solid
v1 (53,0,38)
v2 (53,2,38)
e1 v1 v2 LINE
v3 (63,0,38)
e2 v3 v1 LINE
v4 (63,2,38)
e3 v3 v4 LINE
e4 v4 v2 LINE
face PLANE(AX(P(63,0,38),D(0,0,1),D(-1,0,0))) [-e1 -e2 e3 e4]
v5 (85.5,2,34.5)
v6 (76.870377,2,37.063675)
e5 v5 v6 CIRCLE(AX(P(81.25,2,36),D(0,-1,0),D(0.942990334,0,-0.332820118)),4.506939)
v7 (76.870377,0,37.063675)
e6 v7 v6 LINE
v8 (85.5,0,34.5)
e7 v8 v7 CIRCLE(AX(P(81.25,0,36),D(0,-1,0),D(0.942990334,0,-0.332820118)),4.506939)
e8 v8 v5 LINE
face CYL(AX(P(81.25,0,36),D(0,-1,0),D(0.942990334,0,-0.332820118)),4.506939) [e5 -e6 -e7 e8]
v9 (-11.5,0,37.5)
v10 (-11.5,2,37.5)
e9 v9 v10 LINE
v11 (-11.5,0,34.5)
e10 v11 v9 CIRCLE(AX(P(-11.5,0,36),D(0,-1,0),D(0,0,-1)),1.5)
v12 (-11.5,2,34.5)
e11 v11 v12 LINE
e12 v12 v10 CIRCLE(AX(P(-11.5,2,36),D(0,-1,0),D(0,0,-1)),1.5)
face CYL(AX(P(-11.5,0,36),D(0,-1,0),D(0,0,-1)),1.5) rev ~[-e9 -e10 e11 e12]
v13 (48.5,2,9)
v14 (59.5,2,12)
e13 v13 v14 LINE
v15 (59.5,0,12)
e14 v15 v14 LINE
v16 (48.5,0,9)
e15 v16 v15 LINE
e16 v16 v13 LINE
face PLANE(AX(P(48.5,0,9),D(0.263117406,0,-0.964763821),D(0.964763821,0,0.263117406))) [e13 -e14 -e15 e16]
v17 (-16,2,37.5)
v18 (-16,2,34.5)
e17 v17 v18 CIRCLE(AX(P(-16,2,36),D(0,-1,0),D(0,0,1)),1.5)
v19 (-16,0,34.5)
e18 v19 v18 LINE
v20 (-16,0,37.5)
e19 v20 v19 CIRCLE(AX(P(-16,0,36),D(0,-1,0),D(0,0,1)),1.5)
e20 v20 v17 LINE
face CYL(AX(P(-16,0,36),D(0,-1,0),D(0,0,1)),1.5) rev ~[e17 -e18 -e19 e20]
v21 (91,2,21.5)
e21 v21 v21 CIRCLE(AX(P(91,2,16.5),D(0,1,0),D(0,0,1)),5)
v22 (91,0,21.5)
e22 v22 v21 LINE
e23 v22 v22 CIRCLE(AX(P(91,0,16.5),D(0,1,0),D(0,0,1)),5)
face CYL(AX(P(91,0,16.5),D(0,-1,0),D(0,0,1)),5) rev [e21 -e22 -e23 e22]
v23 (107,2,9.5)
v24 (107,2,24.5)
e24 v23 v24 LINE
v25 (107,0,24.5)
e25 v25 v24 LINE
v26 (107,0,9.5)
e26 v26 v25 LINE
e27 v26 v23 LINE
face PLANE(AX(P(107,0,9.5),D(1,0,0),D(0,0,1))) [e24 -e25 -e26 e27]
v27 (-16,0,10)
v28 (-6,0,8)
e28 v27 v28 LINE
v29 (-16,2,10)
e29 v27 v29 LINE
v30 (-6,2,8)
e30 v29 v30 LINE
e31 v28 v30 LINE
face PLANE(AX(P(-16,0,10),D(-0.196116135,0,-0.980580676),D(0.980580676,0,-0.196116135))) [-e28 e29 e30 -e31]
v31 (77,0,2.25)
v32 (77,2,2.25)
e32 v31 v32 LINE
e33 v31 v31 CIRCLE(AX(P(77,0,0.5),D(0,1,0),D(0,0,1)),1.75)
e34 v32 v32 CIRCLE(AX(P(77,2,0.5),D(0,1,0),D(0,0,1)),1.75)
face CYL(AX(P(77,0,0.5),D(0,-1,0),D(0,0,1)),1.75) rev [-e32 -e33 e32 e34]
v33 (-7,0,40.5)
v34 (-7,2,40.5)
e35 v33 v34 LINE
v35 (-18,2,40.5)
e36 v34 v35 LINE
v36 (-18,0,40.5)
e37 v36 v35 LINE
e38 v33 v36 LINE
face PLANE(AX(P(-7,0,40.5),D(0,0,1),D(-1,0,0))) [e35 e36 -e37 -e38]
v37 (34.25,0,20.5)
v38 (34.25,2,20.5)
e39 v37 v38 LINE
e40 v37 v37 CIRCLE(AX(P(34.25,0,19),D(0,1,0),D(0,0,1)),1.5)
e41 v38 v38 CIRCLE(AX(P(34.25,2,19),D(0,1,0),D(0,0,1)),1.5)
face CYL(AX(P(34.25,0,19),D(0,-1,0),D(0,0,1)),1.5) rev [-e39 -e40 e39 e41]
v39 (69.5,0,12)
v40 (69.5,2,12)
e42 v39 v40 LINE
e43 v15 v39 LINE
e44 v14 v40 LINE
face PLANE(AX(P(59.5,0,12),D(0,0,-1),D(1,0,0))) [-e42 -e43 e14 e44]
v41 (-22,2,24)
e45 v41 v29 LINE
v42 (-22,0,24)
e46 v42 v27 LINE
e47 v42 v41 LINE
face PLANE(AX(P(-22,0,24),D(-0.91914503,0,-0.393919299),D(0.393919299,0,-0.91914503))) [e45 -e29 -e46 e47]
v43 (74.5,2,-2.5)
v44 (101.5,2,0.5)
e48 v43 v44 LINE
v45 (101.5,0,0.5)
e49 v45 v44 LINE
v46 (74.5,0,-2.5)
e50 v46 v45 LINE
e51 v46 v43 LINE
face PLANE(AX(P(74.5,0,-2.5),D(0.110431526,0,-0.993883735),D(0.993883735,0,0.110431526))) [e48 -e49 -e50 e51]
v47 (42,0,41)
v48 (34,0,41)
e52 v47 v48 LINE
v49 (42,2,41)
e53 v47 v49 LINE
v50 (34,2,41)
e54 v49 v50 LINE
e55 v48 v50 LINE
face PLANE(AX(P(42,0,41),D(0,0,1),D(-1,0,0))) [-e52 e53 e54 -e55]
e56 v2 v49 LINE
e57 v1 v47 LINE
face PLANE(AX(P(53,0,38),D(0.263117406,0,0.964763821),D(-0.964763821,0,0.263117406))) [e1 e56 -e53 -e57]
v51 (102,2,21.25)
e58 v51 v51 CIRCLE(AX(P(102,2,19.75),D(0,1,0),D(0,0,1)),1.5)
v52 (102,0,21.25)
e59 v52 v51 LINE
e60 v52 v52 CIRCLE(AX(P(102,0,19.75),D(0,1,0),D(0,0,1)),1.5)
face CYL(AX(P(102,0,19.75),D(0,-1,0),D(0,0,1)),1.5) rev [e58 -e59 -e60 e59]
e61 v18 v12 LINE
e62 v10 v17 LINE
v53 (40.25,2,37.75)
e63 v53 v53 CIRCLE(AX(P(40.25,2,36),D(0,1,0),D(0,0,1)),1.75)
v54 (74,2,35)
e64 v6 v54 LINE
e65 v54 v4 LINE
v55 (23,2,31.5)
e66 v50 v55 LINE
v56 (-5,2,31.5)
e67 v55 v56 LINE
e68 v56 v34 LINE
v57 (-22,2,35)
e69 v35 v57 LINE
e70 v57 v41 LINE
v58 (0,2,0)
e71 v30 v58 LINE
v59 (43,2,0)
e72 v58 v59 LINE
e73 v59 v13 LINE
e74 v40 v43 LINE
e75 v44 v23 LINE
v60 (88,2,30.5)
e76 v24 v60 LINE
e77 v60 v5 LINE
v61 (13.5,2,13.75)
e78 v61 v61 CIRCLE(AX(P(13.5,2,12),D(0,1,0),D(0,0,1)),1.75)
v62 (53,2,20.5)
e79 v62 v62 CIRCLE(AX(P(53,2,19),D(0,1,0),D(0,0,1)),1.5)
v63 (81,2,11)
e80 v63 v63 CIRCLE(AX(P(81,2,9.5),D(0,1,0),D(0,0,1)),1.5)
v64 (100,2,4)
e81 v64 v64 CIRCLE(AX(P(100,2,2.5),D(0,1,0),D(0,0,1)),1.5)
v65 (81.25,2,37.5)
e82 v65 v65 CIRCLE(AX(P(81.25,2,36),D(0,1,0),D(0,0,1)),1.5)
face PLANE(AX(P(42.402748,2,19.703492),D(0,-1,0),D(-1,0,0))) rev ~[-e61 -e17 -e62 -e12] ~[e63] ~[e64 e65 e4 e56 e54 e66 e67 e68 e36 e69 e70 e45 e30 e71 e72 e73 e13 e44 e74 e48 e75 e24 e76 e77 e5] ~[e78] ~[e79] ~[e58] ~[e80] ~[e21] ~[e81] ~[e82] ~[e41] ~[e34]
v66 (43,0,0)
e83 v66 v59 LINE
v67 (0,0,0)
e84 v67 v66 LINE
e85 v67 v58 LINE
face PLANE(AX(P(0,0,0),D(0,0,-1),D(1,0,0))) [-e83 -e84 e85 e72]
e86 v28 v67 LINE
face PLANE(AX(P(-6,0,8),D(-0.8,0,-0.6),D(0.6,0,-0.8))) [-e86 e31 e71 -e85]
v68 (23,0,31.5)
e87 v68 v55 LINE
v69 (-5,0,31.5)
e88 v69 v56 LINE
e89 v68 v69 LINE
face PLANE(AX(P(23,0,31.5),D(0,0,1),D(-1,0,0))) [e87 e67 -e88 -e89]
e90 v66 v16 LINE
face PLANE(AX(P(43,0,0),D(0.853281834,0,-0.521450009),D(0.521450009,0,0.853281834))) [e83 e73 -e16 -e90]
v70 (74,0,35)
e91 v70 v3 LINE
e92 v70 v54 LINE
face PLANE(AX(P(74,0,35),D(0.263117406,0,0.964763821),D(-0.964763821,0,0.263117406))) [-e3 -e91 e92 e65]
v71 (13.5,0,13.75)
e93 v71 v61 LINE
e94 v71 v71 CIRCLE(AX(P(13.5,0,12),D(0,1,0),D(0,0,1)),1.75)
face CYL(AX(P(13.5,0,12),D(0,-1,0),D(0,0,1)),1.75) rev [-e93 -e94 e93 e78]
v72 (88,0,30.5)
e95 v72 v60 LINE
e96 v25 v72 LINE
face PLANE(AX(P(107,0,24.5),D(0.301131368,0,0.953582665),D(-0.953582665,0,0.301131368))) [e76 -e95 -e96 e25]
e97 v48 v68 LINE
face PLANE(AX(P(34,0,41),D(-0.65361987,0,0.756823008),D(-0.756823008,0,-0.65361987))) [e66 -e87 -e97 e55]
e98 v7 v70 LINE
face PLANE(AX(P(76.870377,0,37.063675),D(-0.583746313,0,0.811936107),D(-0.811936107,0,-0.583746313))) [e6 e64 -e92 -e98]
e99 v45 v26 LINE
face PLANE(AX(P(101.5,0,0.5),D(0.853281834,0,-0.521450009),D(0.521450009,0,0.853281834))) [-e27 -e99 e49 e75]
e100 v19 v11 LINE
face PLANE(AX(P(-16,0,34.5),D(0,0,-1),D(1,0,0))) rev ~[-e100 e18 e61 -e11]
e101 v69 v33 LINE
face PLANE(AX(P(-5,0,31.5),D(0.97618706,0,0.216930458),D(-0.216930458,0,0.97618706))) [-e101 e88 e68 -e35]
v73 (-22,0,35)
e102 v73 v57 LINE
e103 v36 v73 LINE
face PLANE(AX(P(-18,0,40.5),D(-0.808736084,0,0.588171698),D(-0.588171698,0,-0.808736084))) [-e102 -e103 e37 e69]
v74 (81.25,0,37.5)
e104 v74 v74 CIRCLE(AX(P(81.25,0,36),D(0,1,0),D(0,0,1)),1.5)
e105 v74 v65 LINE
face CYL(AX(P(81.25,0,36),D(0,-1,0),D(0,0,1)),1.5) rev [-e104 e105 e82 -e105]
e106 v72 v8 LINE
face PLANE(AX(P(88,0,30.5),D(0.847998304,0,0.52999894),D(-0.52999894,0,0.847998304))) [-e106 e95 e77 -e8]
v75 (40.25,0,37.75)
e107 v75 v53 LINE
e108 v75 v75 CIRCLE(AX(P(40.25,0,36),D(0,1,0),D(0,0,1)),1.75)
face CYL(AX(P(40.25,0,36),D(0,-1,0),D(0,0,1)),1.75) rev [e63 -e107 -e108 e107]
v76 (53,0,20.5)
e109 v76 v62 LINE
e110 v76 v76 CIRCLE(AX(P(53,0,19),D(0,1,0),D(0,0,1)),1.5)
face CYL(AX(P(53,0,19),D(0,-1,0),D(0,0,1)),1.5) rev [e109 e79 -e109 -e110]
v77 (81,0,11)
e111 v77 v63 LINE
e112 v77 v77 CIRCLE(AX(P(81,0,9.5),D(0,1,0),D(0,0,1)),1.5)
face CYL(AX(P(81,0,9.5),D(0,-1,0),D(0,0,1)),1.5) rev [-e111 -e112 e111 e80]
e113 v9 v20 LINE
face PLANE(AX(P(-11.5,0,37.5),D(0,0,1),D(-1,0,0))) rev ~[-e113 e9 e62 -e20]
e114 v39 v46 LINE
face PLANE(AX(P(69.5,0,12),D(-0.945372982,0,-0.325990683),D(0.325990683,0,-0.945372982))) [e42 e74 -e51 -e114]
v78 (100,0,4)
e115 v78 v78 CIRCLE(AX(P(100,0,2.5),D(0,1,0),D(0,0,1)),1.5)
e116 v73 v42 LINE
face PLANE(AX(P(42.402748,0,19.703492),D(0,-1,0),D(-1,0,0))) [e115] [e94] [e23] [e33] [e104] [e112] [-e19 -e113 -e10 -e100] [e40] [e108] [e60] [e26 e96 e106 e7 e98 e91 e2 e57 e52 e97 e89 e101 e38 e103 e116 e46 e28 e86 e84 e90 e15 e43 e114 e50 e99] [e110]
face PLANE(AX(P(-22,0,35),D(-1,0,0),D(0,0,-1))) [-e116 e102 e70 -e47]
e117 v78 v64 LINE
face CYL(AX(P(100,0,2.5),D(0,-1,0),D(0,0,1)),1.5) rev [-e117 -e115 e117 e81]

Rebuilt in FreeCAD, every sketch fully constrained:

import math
import FreeCAD as App
import Part
import Sketcher

V = App.Vector

doc = App.newDocument("Part")
body = doc.addObject("PartDesign::Body", "Body")

# Sketch on XZ plane
sketch1 = doc.addObject("Sketcher::SketchObject", "Sketch")
body.addObject(sketch1)
sketch1.AttachmentSupport = (doc.XZ_Plane, [""])
sketch1.MapMode = "FlatFace"
sketch1.addGeometry(Part.LineSegment(V(43, 0, 0), V(0, 0, 0)), False)
sketch1.addGeometry(Part.LineSegment(V(0, 0, 0), V(-6, 8, 0)), False)
sketch1.addGeometry(Part.LineSegment(V(-6, 8, 0), V(-16, 10, 0)), False)
sketch1.addGeometry(Part.LineSegment(V(-16, 10, 0), V(-22, 24, 0)), False)
sketch1.addGeometry(Part.LineSegment(V(-22, 24, 0), V(-22, 35, 0)), False)
sketch1.addGeometry(Part.LineSegment(V(-22, 35, 0), V(-18, 40.5, 0)), False)
sketch1.addGeometry(Part.LineSegment(V(-18, 40.5, 0), V(-7, 40.5, 0)), False)
sketch1.addGeometry(Part.LineSegment(V(-7, 40.5, 0), V(-5, 31.5, 0)), False)
sketch1.addGeometry(Part.LineSegment(V(-5, 31.5, 0), V(23, 31.5, 0)), False)
sketch1.addGeometry(Part.LineSegment(V(23, 31.5, 0), V(34, 41, 0)), False)
sketch1.addGeometry(Part.LineSegment(V(34, 41, 0), V(42, 41, 0)), False)
sketch1.addGeometry(Part.LineSegment(V(42, 41, 0), V(53, 38, 0)), False)
sketch1.addGeometry(Part.LineSegment(V(53, 38, 0), V(63, 38, 0)), False)
sketch1.addGeometry(Part.LineSegment(V(63, 38, 0), V(74, 35, 0)), False)
sketch1.addGeometry(Part.LineSegment(V(74, 35, 0), V(76.9, 37.1, 0)), False)
sketch1.addGeometry(Part.ArcOfCircle(Part.Circle(V(81.2, 36, 0), V(0, 0, 1), 4.5), math.radians(-19), math.radians(166)), False)
sketch1.addGeometry(Part.LineSegment(V(85.5, 34.5, 0), V(88, 30.5, 0)), False)
sketch1.addGeometry(Part.LineSegment(V(88, 30.5, 0), V(107, 24.5, 0)), False)
sketch1.addGeometry(Part.LineSegment(V(107, 24.5, 0), V(107, 9.5, 0)), False)
sketch1.addGeometry(Part.LineSegment(V(107, 9.5, 0), V(101.5, 0.5, 0)), False)
sketch1.addGeometry(Part.LineSegment(V(101.5, 0.5, 0), V(74.5, -2.5, 0)), False)
sketch1.addGeometry(Part.LineSegment(V(74.5, -2.5, 0), V(69.5, 12, 0)), False)
sketch1.addGeometry(Part.LineSegment(V(69.5, 12, 0), V(59.5, 12, 0)), False)
sketch1.addGeometry(Part.LineSegment(V(59.5, 12, 0), V(48.5, 9, 0)), False)
sketch1.addGeometry(Part.LineSegment(V(48.5, 9, 0), V(43, 0, 0)), False)
sketch1.addGeometry(Part.Circle(V(81.2, 36, 0), V(0, 0, 1), 1.5), False)
sketch1.addGeometry(Part.Circle(V(102, 19.8, 0), V(0, 0, 1), 1.5), False)
sketch1.addGeometry(Part.Circle(V(53, 19, 0), V(0, 0, 1), 1.5), False)
sketch1.addGeometry(Part.Circle(V(40.2, 36, 0), V(0, 0, 1), 1.8), False)
sketch1.addGeometry(Part.LineSegment(V(-16, 34.5, 0), V(-11.5, 34.5, 0)), False)
sketch1.addGeometry(Part.ArcOfCircle(Part.Circle(V(-11.5, 36, 0), V(0, 0, 1), 1.5), math.radians(-90), math.radians(90)), False)
sketch1.addGeometry(Part.LineSegment(V(-11.5, 37.5, 0), V(-16, 37.5, 0)), False)
sketch1.addGeometry(Part.ArcOfCircle(Part.Circle(V(-16, 36, 0), V(0, 0, 1), 1.5), math.radians(90), math.radians(270)), False)
sketch1.addGeometry(Part.Circle(V(34.2, 19, 0), V(0, 0, 1), 1.5), False)
sketch1.addGeometry(Part.Circle(V(91, 16.5, 0), V(0, 0, 1), 5), False)
sketch1.addGeometry(Part.Circle(V(81, 9.5, 0), V(0, 0, 1), 1.5), False)
sketch1.addGeometry(Part.Circle(V(100, 2.5, 0), V(0, 0, 1), 1.5), False)
sketch1.addGeometry(Part.Circle(V(77, 0.5, 0), V(0, 0, 1), 1.8), False)
sketch1.addGeometry(Part.Circle(V(13.5, 12, 0), V(0, 0, 1), 1.8), False)
sketch1.addConstraint(Sketcher.Constraint("Coincident", 0, 2, 1, 1))
sketch1.addConstraint(Sketcher.Constraint("Coincident", 1, 2, 2, 1))
sketch1.addConstraint(Sketcher.Constraint("Coincident", 2, 2, 3, 1))
sketch1.addConstraint(Sketcher.Constraint("Coincident", 3, 2, 4, 1))
sketch1.addConstraint(Sketcher.Constraint("Coincident", 4, 2, 5, 1))
sketch1.addConstraint(Sketcher.Constraint("Coincident", 5, 2, 6, 1))
sketch1.addConstraint(Sketcher.Constraint("Coincident", 6, 2, 7, 1))
sketch1.addConstraint(Sketcher.Constraint("Coincident", 7, 2, 8, 1))
sketch1.addConstraint(Sketcher.Constraint("Coincident", 8, 2, 9, 1))
sketch1.addConstraint(Sketcher.Constraint("Coincident", 9, 2, 10, 1))
sketch1.addConstraint(Sketcher.Constraint("Coincident", 10, 2, 11, 1))
sketch1.addConstraint(Sketcher.Constraint("Coincident", 11, 2, 12, 1))
sketch1.addConstraint(Sketcher.Constraint("Coincident", 12, 2, 13, 1))
sketch1.addConstraint(Sketcher.Constraint("Coincident", 13, 2, 14, 1))
sketch1.addConstraint(Sketcher.Constraint("Coincident", 14, 2, 15, 2))
sketch1.addConstraint(Sketcher.Constraint("Coincident", 15, 1, 16, 1))
sketch1.addConstraint(Sketcher.Constraint("Coincident", 16, 2, 17, 1))
sketch1.addConstraint(Sketcher.Constraint("Coincident", 17, 2, 18, 1))
sketch1.addConstraint(Sketcher.Constraint("Coincident", 18, 2, 19, 1))
sketch1.addConstraint(Sketcher.Constraint("Coincident", 19, 2, 20, 1))
sketch1.addConstraint(Sketcher.Constraint("Coincident", 20, 2, 21, 1))
sketch1.addConstraint(Sketcher.Constraint("Coincident", 21, 2, 22, 1))
sketch1.addConstraint(Sketcher.Constraint("Coincident", 22, 2, 23, 1))
sketch1.addConstraint(Sketcher.Constraint("Coincident", 23, 2, 24, 1))
sketch1.addConstraint(Sketcher.Constraint("Coincident", 24, 2, 0, 1))
sketch1.addConstraint(Sketcher.Constraint("Tangent", 29, 2, 30, 1))
sketch1.addConstraint(Sketcher.Constraint("Tangent", 30, 2, 31, 1))
sketch1.addConstraint(Sketcher.Constraint("Tangent", 31, 2, 32, 1))
sketch1.addConstraint(Sketcher.Constraint("Tangent", 32, 2, 29, 1))
sketch1.addConstraint(Sketcher.Constraint("Horizontal", 0))
sketch1.addConstraint(Sketcher.Constraint("Vertical", 4))
sketch1.addConstraint(Sketcher.Constraint("Horizontal", 6))
sketch1.addConstraint(Sketcher.Constraint("Horizontal", 8))
sketch1.addConstraint(Sketcher.Constraint("Horizontal", 10))
sketch1.addConstraint(Sketcher.Constraint("Horizontal", 12))
sketch1.addConstraint(Sketcher.Constraint("Vertical", 18))
sketch1.addConstraint(Sketcher.Constraint("Horizontal", 22))
sketch1.addConstraint(Sketcher.Constraint("Horizontal", 29))
sketch1.addConstraint(Sketcher.Constraint("Horizontal", 31))
sketch1.addConstraint(Sketcher.Constraint("Coincident", 0, 2, -1, 1))
sketch1.addConstraint(Sketcher.Constraint("Coincident", 25, 3, 15, 3))
sketch1.addConstraint(Sketcher.Constraint("Equal", 25, 26))
sketch1.addConstraint(Sketcher.Constraint("Equal", 26, 27))
sketch1.addConstraint(Sketcher.Constraint("Equal", 27, 30))
sketch1.addConstraint(Sketcher.Constraint("Equal", 32, 33))
sketch1.addConstraint(Sketcher.Constraint("Equal", 33, 35))
sketch1.addConstraint(Sketcher.Constraint("Equal", 35, 36))
sketch1.addConstraint(Sketcher.Constraint("Equal", 28, 37))
sketch1.addConstraint(Sketcher.Constraint("Equal", 37, 38))
sketch1.addConstraint(Sketcher.Constraint("Parallel", 11, 13))
sketch1.addConstraint(Sketcher.Constraint("Parallel", 19, 24))
sketch1.addConstraint(Sketcher.Constraint("Horizontal", 25, 3, 28, 3))
sketch1.addConstraint(Sketcher.Constraint("Horizontal", 28, 3, 30, 3))
sketch1.addConstraint(Sketcher.Constraint("Horizontal", 27, 3, 33, 3))
sketch1.addConstraint(Sketcher.Constraint("Horizontal", 4, 2, 13, 2))
sketch1.addConstraint(Sketcher.Constraint("Horizontal", 35, 3, 18, 2))
sketch1.addConstraint(Sketcher.Constraint("Horizontal", 37, 3, 19, 2))
sketch1.addConstraint(Sketcher.Constraint("Horizontal", 38, 3, 21, 2))
sketch1.addConstraint(Sketcher.Constraint("Horizontal", 15, 1, 29, 2))
sketch1.addConstraint(Sketcher.Constraint("Vertical", 32, 3, 2, 2))
sketch1.addConstraint(Sketcher.Constraint("Vertical", 27, 3, 11, 2))
sketch1.addConstraint(Sketcher.Constraint("Equal", 12, 22))
sketch1.addConstraint(Sketcher.Constraint("Equal", 6, 4))
sketch1.addConstraint(Sketcher.Constraint("Equal", 11, 13))
sketch1.addConstraint(Sketcher.Constraint("Equal", 13, 23))
sketch1.addConstraint(Sketcher.Constraint("Equal", 19, 24))
sketch1.addConstraint(Sketcher.Constraint("Diameter", 25, 3.0))
sketch1.addConstraint(Sketcher.Constraint("Diameter", 34, 10.0))
sketch1.addConstraint(Sketcher.Constraint("Diameter", 28, 3.5))
sketch1.addConstraint(Sketcher.Constraint("DistanceX", 0, 2, 0, 1, 43.0))
sketch1.addConstraint(Sketcher.Constraint("DistanceX", 6, 1, 6, 2, 11.0))
sketch1.addConstraint(Sketcher.Constraint("DistanceX", 8, 1, 8, 2, 28.0))
sketch1.addConstraint(Sketcher.Constraint("DistanceX", 10, 1, 10, 2, 8.0))
sketch1.addConstraint(Sketcher.Constraint("DistanceX", 12, 1, 12, 2, 10.0))
sketch1.addConstraint(Sketcher.Constraint("DistanceY", 18, 2, 18, 1, 15.0))
sketch1.addConstraint(Sketcher.Constraint("Distance", 1, 10.0))
sketch1.addConstraint(Sketcher.Constraint("DistanceX", 29, 1, 29, 2, 4.5))
sketch1.addConstraint(Sketcher.Constraint("DistanceY", -1, 1, 15, 3, 36.0))
sketch1.addConstraint(Sketcher.Constraint("DistanceX", -1, 1, 26, 3, 102.0))
sketch1.addConstraint(Sketcher.Constraint("DistanceX", -1, 1, 27, 3, 53.0))
sketch1.addConstraint(Sketcher.Constraint("DistanceY", -1, 1, 27, 3, 19.0))
sketch1.addConstraint(Sketcher.Constraint("DistanceX", 32, 3, -1, 1, 16.0))
sketch1.addConstraint(Sketcher.Constraint("DistanceX", -1, 1, 34, 3, 91.0))
sketch1.addConstraint(Sketcher.Constraint("DistanceX", -1, 1, 35, 3, 81.0))
sketch1.addConstraint(Sketcher.Constraint("DistanceX", -1, 1, 36, 3, 100.0))
sketch1.addConstraint(Sketcher.Constraint("DistanceX", -1, 1, 37, 3, 77.0))
sketch1.addConstraint(Sketcher.Constraint("DistanceY", -1, 1, 38, 3, 12.0))
sketch1.addConstraint(Sketcher.Constraint("DistanceX", 1, 2, -1, 1, 6.0))
sketch1.addConstraint(Sketcher.Constraint("DistanceY", -1, 1, 2, 2, 10.0))
sketch1.addConstraint(Sketcher.Constraint("DistanceX", 3, 2, -1, 1, 22.0))
sketch1.addConstraint(Sketcher.Constraint("DistanceY", -1, 1, 3, 2, 24.0))
sketch1.addConstraint(Sketcher.Constraint("DistanceX", 5, 2, -1, 1, 18.0))
sketch1.addConstraint(Sketcher.Constraint("DistanceX", 7, 2, -1, 1, 5.0))
sketch1.addConstraint(Sketcher.Constraint("DistanceX", -1, 1, 9, 2, 34.0))
sketch1.addConstraint(Sketcher.Constraint("DistanceY", -1, 1, 9, 2, 41.0))
sketch1.addConstraint(Sketcher.Constraint("DistanceX", -1, 1, 16, 2, 88.0))
sketch1.addConstraint(Sketcher.Constraint("DistanceX", -1, 1, 17, 2, 107.0))
sketch1.addConstraint(Sketcher.Constraint("DistanceY", -1, 1, 23, 2, 9.0))
sketch1.addConstraint(Sketcher.Constraint("DistanceX", 28, 3, 15, 3, 41.0))
sketch1.addConstraint(Sketcher.Constraint("DistanceX", 33, 3, 28, 3, 6.0))
sketch1.addConstraint(Sketcher.Constraint("DistanceY", 35, 3, 34, 3, 7.0))
sketch1.addConstraint(Sketcher.Constraint("DistanceY", 36, 3, 34, 3, 14.0))
sketch1.addConstraint(Sketcher.Constraint("DistanceX", 30, 3, 38, 3, 25.0))
sketch1.addConstraint(Sketcher.Constraint("DistanceY", 7, 2, 6, 2, 9.0))
sketch1.addConstraint(Sketcher.Constraint("DistanceY", 34, 3, 15, 1, 18.0))
sketch1.addConstraint(Sketcher.Constraint("DistanceY", 16, 2, 15, 1, 4.0))
sketch1.addConstraint(Sketcher.Constraint("DistanceY", 20, 2, 37, 3, 3.0))
sketch1.addConstraint(Sketcher.Constraint("DistanceX", 20, 2, 19, 2, 27.0))
sketch1.addConstraint(Sketcher.Constraint("DistanceX", 21, 2, 20, 2, 5.0))
sketch1.addConstraint(Sketcher.Constraint("DistanceY", 7, 2, 29, 2, 3.0))
sketch1.addConstraint(Sketcher.Constraint("DistanceX", -1, 1, 15, 1, 85.5))
sketch1.addConstraint(Sketcher.Constraint("DistanceX", -1, 1, 15, 3, 81.25))
sketch1.addConstraint(Sketcher.Constraint("DistanceY", -1, 1, 26, 3, 19.75))
sketch1.addConstraint(Sketcher.Constraint("Distance", 14, 3.535225))
pad1 = doc.addObject("PartDesign::Pad", "Pad")
body.addObject(pad1)
pad1.Profile = sketch1
pad1.Length = 2
pad1.Reversed = True

doc.recompute()
